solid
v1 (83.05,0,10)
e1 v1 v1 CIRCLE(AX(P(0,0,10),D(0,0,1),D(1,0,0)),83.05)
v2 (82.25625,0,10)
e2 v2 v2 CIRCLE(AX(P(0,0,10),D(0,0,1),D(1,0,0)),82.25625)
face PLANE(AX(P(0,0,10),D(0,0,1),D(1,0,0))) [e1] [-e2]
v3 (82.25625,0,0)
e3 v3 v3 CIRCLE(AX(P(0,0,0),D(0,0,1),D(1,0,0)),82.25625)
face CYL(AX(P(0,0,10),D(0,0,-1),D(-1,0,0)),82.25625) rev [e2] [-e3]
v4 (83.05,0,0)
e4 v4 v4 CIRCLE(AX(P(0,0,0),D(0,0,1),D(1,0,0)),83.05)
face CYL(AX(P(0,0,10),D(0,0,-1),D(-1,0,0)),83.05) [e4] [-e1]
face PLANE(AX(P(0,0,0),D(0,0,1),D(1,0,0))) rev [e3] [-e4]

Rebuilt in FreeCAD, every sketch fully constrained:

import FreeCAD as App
import Part
import Sketcher
from FreeCAD import Vector

doc = App.newDocument("Part")
body = doc.addObject("PartDesign::Body", "Body")

sketch1 = doc.addObject("Sketcher::SketchObject", "Sketch")
body.addObject(sketch1)
sketch1.AttachmentSupport = (doc.XY_Plane, [""])
sketch1.MapMode = "FlatFace"
sketch1.addGeometry([
    Part.Circle(Vector(0, 0, 0), Vector(0, 0, 1), 83),
    Part.Circle(Vector(0, 0, 0), Vector(0, 0, 1), 82),
], False)
sketch1.addConstraint([
    Sketcher.Constraint("Coincident", 0, 3, -1, 1),
    Sketcher.Constraint("Coincident", 1, 3, -1, 1),
    Sketcher.Constraint("Diameter", 0, 166.1),
    Sketcher.Constraint("Diameter", 1, 164.5125),
])
pad1 = doc.addObject("PartDesign::Pad", "Pad")
body.addObject(pad1)
pad1.Profile = sketch1
pad1.Length = 10

doc.recompute()
